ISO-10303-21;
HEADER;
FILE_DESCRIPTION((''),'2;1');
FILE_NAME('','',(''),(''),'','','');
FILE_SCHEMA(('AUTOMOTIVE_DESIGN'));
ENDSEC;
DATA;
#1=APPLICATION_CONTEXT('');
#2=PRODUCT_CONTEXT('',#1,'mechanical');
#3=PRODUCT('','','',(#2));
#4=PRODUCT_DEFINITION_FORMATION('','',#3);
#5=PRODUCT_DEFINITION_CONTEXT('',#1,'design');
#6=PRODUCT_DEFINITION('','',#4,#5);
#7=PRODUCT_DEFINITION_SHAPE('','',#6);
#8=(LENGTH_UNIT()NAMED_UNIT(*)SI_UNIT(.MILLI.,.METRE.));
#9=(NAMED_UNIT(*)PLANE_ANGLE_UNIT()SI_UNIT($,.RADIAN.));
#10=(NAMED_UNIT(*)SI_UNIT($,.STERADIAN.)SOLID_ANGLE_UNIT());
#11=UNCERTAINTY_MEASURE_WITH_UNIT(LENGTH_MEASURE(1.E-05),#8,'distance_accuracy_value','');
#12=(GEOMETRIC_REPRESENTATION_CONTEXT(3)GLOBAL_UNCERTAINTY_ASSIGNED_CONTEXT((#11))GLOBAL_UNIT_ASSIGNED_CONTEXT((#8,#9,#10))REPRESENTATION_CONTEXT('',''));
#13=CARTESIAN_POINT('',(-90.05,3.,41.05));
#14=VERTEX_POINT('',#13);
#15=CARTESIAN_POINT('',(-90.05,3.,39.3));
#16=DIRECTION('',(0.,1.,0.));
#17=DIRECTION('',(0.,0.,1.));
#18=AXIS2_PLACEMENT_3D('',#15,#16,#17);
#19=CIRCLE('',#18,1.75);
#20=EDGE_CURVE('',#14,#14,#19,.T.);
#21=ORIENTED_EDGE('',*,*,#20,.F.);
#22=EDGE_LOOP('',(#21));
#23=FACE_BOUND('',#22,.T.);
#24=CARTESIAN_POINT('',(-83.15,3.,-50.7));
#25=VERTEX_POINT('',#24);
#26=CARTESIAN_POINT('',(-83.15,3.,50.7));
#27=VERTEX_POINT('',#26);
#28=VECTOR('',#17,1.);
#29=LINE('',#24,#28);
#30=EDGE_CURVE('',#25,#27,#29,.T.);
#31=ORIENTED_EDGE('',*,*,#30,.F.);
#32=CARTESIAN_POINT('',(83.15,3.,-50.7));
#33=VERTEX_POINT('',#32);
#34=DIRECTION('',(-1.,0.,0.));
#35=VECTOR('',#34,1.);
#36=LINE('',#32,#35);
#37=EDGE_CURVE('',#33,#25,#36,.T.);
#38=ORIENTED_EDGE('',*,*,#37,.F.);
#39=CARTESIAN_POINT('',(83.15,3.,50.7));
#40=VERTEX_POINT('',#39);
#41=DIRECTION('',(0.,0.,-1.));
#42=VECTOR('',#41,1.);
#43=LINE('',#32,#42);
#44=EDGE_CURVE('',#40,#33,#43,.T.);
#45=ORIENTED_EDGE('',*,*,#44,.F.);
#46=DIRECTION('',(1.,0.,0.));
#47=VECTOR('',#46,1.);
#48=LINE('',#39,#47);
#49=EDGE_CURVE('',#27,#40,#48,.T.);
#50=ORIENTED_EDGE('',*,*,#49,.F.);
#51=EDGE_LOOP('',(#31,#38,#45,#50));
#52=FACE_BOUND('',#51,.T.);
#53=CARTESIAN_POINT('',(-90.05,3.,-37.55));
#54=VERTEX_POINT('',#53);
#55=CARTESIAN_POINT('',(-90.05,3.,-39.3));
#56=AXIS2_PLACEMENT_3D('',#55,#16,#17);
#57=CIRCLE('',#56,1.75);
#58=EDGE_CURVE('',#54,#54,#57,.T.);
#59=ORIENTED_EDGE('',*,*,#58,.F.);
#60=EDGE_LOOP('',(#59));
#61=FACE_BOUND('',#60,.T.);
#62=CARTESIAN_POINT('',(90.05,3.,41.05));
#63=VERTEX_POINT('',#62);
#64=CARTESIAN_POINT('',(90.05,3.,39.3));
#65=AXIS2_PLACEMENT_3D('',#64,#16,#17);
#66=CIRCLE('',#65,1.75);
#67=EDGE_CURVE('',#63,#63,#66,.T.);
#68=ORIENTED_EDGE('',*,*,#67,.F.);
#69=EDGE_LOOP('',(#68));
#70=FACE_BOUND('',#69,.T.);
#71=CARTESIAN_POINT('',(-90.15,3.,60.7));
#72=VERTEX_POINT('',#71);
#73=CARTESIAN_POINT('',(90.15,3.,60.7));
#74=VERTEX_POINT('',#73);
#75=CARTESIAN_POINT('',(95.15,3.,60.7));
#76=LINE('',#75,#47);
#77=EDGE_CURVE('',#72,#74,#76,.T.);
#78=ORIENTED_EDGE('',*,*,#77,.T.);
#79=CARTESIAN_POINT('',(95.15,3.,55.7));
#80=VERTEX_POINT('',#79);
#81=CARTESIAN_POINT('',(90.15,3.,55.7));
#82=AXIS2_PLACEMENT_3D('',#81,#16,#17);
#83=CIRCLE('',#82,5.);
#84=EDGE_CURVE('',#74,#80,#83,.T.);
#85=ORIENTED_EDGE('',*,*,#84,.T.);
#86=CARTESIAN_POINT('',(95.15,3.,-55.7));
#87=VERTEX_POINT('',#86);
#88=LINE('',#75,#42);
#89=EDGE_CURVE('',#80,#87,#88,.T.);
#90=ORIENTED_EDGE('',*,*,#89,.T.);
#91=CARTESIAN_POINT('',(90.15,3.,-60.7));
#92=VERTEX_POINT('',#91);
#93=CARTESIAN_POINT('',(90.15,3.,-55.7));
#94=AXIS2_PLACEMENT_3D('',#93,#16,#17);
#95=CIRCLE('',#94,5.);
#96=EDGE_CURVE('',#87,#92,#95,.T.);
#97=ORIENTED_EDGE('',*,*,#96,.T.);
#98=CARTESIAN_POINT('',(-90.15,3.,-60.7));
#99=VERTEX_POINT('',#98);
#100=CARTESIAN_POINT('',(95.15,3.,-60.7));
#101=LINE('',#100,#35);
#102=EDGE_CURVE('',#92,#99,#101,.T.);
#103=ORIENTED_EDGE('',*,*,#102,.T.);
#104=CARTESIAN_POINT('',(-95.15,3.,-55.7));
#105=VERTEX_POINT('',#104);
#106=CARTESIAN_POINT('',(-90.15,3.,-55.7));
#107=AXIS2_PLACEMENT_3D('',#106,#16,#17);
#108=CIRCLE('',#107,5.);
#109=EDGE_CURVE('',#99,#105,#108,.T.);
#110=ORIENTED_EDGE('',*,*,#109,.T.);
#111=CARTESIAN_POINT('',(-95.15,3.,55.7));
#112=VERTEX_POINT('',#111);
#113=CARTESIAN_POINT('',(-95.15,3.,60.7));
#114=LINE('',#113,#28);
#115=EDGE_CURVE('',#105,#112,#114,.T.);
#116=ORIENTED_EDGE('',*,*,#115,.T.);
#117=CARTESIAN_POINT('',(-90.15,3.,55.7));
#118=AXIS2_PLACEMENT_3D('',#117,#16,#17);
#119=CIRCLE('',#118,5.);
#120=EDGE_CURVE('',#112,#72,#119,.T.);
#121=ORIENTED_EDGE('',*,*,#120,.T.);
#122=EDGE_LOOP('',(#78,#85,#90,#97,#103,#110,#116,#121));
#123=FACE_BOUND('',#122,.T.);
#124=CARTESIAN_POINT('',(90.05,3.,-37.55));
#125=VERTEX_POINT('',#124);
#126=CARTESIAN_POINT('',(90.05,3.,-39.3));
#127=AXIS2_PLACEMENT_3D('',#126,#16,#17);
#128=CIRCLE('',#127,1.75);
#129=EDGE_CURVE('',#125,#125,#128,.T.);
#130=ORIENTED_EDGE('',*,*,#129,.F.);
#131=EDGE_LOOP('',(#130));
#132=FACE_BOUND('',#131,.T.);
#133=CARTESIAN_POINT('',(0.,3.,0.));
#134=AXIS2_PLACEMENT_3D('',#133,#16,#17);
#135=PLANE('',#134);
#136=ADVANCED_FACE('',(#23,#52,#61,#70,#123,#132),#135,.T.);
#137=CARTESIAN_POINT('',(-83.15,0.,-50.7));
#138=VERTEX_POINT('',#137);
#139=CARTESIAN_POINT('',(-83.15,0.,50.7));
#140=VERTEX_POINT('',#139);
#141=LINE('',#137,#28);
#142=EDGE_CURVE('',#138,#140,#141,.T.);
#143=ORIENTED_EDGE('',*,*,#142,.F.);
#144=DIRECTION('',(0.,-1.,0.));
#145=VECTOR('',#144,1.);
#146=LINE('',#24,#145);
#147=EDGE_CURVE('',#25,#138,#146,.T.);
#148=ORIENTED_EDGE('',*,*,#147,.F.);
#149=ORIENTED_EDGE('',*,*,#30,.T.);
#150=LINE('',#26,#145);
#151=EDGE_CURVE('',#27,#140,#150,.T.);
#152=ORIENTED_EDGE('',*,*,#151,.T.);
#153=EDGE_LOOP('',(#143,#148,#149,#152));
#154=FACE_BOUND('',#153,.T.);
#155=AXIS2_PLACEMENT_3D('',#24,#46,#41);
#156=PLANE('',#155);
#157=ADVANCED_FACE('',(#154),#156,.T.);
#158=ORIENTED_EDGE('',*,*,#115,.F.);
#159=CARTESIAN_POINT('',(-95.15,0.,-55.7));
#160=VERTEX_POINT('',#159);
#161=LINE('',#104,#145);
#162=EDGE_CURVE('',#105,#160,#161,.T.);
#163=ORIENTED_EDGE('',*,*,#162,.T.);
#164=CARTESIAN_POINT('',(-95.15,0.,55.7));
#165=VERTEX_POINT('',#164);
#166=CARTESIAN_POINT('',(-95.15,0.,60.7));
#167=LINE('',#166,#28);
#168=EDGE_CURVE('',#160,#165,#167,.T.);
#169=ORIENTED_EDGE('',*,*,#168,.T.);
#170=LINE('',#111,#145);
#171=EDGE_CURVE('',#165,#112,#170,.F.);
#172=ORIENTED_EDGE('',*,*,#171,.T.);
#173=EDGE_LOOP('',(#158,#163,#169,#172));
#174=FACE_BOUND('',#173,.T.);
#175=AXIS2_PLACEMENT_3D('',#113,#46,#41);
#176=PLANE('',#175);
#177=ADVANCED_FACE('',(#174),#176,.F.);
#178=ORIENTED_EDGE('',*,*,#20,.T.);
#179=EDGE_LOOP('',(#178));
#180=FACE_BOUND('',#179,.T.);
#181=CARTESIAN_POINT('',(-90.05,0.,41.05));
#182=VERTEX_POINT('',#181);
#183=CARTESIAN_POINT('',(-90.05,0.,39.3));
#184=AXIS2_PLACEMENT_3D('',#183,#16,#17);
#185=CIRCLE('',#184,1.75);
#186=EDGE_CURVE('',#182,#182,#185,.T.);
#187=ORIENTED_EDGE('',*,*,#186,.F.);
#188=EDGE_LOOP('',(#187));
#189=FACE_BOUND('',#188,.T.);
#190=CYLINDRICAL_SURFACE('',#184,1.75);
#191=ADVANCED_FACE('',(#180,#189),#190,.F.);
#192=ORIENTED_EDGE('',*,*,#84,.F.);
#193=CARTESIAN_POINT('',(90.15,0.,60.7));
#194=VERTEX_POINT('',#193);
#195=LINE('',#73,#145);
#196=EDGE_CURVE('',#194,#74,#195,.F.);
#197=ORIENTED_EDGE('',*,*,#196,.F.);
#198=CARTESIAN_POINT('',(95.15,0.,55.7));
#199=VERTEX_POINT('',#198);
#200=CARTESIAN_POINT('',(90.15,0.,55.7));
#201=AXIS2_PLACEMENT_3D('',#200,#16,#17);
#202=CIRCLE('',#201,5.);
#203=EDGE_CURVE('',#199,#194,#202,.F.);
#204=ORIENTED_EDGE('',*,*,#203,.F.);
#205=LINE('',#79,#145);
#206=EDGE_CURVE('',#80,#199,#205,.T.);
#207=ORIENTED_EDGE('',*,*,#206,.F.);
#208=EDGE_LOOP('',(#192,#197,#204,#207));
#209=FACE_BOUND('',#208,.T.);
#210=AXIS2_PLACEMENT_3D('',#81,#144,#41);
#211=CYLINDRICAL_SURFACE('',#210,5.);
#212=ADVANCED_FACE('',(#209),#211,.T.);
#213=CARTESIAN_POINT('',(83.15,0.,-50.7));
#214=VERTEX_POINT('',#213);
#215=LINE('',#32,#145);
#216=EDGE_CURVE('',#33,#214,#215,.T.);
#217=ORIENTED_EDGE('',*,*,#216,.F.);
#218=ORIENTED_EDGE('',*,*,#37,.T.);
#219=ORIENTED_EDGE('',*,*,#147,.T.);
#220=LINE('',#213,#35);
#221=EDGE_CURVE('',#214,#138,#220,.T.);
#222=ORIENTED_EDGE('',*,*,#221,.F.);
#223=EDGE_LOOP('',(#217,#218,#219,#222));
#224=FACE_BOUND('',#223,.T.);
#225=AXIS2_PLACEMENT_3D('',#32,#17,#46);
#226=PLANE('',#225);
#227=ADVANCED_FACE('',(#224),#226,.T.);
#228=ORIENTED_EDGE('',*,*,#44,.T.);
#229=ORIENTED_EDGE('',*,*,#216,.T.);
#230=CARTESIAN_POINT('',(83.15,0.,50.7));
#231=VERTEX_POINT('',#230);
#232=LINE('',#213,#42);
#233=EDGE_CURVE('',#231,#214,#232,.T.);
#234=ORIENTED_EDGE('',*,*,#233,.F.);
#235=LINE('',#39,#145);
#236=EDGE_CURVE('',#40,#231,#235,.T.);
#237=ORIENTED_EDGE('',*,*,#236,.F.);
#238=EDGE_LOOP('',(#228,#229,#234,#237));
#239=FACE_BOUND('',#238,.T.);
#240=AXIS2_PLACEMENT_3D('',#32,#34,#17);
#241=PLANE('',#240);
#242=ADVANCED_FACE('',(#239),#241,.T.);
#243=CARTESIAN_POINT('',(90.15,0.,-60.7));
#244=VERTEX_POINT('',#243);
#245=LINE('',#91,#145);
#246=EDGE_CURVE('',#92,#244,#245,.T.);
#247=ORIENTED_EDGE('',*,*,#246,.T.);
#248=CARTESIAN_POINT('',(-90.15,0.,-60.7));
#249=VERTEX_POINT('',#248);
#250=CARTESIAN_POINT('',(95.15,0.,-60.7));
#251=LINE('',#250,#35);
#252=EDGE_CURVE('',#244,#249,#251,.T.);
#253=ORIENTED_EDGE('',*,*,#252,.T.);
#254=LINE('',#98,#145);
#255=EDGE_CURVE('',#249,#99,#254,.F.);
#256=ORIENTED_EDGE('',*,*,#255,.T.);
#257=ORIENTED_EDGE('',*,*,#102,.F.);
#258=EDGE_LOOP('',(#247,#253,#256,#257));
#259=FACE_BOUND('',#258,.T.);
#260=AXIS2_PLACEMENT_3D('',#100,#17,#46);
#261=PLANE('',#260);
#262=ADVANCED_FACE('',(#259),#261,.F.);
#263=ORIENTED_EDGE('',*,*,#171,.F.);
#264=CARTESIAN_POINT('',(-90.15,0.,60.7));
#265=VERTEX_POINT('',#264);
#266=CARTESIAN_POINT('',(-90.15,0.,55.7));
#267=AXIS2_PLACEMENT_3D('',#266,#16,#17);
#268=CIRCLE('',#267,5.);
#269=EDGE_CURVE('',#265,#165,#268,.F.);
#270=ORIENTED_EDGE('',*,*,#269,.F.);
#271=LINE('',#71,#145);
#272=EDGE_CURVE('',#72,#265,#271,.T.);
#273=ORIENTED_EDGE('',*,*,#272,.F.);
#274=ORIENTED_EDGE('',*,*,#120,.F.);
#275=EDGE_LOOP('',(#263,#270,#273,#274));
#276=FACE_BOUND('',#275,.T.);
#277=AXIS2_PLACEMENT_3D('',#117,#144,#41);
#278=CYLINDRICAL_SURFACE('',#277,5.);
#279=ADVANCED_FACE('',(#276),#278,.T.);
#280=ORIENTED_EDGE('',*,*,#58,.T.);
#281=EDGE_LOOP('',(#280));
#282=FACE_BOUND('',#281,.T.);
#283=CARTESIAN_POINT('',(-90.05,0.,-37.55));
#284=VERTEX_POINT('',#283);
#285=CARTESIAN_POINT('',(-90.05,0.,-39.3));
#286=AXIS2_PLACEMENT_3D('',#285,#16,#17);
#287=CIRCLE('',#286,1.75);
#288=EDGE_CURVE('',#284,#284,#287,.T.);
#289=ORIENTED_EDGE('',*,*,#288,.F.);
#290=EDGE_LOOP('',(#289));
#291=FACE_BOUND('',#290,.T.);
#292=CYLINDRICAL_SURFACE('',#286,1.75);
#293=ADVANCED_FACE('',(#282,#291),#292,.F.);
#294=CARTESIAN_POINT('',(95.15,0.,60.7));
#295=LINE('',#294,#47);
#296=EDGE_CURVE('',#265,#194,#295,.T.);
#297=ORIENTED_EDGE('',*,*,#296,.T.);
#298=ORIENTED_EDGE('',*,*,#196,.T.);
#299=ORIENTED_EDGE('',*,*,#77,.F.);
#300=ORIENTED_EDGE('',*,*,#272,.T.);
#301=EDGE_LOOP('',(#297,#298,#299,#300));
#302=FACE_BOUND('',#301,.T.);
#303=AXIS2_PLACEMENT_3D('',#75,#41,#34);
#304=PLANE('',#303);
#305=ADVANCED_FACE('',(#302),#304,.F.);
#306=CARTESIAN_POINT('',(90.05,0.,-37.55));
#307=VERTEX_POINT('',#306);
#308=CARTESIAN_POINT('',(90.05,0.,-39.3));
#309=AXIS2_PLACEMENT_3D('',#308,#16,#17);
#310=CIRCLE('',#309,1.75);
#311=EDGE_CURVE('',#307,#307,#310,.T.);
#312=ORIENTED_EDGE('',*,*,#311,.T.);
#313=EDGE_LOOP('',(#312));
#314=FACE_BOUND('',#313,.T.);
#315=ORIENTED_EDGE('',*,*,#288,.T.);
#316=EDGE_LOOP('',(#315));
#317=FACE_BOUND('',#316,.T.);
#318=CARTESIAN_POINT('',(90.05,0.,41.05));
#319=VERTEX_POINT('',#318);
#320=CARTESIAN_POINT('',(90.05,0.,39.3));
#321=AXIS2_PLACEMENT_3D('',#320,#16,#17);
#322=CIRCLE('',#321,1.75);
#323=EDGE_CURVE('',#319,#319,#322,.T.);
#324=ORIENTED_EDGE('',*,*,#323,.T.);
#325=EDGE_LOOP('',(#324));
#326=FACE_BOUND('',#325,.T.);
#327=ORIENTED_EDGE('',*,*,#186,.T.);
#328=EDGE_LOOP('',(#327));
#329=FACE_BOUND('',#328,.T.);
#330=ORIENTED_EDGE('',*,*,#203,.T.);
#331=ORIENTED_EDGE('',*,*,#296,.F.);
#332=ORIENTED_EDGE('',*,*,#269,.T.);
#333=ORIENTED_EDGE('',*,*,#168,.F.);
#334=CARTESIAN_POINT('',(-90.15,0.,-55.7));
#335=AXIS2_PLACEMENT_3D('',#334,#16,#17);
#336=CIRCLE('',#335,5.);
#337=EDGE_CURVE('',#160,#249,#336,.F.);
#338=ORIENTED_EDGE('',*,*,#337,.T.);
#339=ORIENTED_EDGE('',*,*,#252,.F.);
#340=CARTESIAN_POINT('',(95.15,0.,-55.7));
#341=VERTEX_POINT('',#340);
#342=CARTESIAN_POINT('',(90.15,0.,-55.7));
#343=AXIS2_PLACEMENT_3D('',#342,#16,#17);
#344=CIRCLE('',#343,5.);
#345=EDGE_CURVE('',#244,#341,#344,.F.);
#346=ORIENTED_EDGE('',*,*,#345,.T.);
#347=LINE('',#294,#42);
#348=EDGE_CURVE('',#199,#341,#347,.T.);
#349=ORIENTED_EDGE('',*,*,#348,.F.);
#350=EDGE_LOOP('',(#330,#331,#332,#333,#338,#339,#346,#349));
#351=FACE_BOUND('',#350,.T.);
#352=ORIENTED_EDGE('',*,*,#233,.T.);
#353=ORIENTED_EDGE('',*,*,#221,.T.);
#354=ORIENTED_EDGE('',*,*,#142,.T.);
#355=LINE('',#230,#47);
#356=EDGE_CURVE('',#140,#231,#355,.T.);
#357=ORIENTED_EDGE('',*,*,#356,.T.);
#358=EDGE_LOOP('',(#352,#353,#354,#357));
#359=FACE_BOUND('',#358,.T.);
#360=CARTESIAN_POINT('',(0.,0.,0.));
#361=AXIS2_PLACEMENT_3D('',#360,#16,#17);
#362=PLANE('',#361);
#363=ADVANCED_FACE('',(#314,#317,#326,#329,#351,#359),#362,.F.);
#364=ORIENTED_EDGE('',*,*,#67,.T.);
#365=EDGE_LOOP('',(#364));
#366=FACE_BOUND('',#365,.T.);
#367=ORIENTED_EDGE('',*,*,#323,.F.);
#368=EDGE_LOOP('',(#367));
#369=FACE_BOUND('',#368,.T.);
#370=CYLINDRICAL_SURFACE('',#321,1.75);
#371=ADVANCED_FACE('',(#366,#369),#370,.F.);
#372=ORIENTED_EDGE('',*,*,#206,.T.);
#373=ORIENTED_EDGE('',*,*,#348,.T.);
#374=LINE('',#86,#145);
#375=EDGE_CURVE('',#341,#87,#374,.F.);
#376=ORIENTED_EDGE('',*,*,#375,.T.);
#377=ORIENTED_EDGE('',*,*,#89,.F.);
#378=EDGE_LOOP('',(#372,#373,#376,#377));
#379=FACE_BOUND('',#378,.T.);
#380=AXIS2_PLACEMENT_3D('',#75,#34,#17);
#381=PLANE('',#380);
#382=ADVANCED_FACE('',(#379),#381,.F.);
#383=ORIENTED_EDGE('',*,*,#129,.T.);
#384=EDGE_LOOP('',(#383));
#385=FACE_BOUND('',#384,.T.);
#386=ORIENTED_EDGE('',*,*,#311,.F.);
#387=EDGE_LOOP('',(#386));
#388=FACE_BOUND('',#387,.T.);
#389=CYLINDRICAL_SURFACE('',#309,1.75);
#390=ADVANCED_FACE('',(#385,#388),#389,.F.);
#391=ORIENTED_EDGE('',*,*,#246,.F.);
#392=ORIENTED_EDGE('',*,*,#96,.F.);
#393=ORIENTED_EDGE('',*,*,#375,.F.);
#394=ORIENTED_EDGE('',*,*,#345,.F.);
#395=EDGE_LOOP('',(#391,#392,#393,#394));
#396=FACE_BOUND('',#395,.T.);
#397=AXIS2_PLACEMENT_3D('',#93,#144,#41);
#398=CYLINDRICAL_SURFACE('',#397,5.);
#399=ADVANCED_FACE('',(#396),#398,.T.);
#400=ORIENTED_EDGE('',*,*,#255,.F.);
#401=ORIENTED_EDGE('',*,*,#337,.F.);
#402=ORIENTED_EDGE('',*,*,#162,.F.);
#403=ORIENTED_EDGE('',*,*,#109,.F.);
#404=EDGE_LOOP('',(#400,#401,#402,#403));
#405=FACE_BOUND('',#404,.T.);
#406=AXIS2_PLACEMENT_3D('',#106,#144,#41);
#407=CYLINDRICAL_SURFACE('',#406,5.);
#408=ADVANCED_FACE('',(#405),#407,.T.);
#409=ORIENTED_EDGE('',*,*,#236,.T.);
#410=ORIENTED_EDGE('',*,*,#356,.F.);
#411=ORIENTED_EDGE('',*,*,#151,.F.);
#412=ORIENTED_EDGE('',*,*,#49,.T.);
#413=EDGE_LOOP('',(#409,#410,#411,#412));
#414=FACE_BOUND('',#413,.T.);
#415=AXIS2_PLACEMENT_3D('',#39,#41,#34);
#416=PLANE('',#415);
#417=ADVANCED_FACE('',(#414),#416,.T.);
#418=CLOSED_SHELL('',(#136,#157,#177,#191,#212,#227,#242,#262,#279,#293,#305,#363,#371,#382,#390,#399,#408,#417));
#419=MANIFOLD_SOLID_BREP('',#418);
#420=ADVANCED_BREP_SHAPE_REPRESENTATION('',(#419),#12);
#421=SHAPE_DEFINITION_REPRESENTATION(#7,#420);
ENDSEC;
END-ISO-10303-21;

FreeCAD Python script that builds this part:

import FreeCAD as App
import Part
import Sketcher

V = App.Vector


def edges_at(feature, points):
    """Names of the edges that pass closest to the given points."""
    edges = feature.Shape.Edges
    near = lambda p: min(range(len(edges)), key=lambda i: edges[i].distToShape(Part.Vertex(*p))[0])
    return sorted({f"Edge{near(p) + 1}" for p in points})

doc = App.newDocument("Part")
body = doc.addObject("PartDesign::Body", "Body")

sketch1 = doc.addObject("Sketcher::SketchObject", "Sketch")
body.addObject(sketch1)
sketch1.AttachmentSupport = (doc.XZ_Plane, [""])
sketch1.MapMode = "FlatFace"
sketch1.addGeometry([
    Part.LineSegment(V(-95, -61, 0), V(-95, 61, 0)),
    Part.LineSegment(V(-95, 61, 0), V(95, 61, 0)),
    Part.LineSegment(V(95, 61, 0), V(95, -61, 0)),
    Part.LineSegment(V(95, -61, 0), V(-95, -61, 0)),
    Part.LineSegment(V(83, 51, 0), V(-83, 51, 0)),
    Part.LineSegment(V(-83, 51, 0), V(-83, -51, 0)),
    Part.LineSegment(V(-83, -51, 0), V(83, -51, 0)),
    Part.LineSegment(V(83, -51, 0), V(83, 51, 0)),
], False)
sketch1.addConstraint([
    Sketcher.Constraint("Coincident", 0, 2, 1, 1),
    Sketcher.Constraint("Coincident", 1, 2, 2, 1),
    Sketcher.Constraint("Coincident", 2, 2, 3, 1),
    Sketcher.Constraint("Coincident", 3, 2, 0, 1),
    Sketcher.Constraint("Coincident", 4, 2, 5, 1),
    Sketcher.Constraint("Coincident", 5, 2, 6, 1),
    Sketcher.Constraint("Coincident", 6, 2, 7, 1),
    Sketcher.Constraint("Coincident", 7, 2, 4, 1),
    Sketcher.Constraint("Vertical", 0),
    Sketcher.Constraint("Horizontal", 1),
    Sketcher.Constraint("Vertical", 2),
    Sketcher.Constraint("Horizontal", 3),
    Sketcher.Constraint("Horizontal", 4),
    Sketcher.Constraint("Vertical", 5),
    Sketcher.Constraint("Horizontal", 6),
    Sketcher.Constraint("Vertical", 7),
    Sketcher.Constraint("Symmetric", 0, 2, 2, 2, -1, 1),
    Sketcher.Constraint("Symmetric", 4, 2, 6, 2, -1, 1),
    Sketcher.Constraint("DistanceX", 1, 1, 1, 2, 190.3),
    Sketcher.Constraint("DistanceX", 4, 2, 4, 1, 166.3),
    Sketcher.Constraint("DistanceY", 0, 1, 0, 2, 121.4),
    Sketcher.Constraint("DistanceY", 5, 2, 5, 1, 101.4),
])
pad1 = doc.addObject("PartDesign::Pad", "Pad")
body.addObject(pad1)
pad1.Profile = sketch1
pad1.Length = 3
pad1.Reversed = True
doc.recompute()

fillet = doc.addObject("PartDesign::Fillet", "Fillet")
body.addObject(fillet)
fillet.Base = (pad1, edges_at(pad1, [
    (-95.15, 1.5, -60.7),
    (95.15, 1.5, -60.7),
    (95.15, 1.5, 60.7),
    (-95.15, 1.5, 60.7),
]))
fillet.Radius = 5

sketch2 = doc.addObject("Sketcher::SketchObject", "Sketch001")
body.addObject(sketch2)
sketch2.AttachmentSupport = (doc.XZ_Plane, [""])
sketch2.MapMode = "FlatFace"
sketch2.AttachmentOffset = App.Placement(V(0, 0, -3), App.Rotation())
sketch2.addGeometry([
    Part.Circle(V(-90, -39.3, 0), V(0, 0, 1), 1.8),
    Part.Circle(V(90, -39.3, 0), V(0, 0, 1), 1.8),
    Part.Circle(V(90, 39.3, 0), V(0, 0, 1), 1.8),
    Part.Circle(V(-90, 39.3, 0), V(0, 0, 1), 1.8),
], False)
sketch2.addConstraint([
    Sketcher.Constraint("Equal", 0, 1),
    Sketcher.Constraint("Equal", 1, 2),
    Sketcher.Constraint("Equal", 2, 3),
    Sketcher.Constraint("Symmetric", 0, 3, 2, 3, -1, 1),
    Sketcher.Constraint("Symmetric", 1, 3, 3, 3, -1, 1),
    Sketcher.Constraint("Symmetric", 0, 3, 1, 3, -2),
    Sketcher.Constraint("Diameter", 0, 3.5),
    Sketcher.Constraint("DistanceY", 0, 3, -1, 1, 39.3),
    Sketcher.Constraint("DistanceX", 0, 3, 1, 3, 180.1),
])
pocket1 = doc.addObject("PartDesign::Pocket", "Pocket")
body.addObject(pocket1)
pocket1.Profile = sketch2
pocket1.Length = 3
pocket1.Reversed = True

doc.recompute()
